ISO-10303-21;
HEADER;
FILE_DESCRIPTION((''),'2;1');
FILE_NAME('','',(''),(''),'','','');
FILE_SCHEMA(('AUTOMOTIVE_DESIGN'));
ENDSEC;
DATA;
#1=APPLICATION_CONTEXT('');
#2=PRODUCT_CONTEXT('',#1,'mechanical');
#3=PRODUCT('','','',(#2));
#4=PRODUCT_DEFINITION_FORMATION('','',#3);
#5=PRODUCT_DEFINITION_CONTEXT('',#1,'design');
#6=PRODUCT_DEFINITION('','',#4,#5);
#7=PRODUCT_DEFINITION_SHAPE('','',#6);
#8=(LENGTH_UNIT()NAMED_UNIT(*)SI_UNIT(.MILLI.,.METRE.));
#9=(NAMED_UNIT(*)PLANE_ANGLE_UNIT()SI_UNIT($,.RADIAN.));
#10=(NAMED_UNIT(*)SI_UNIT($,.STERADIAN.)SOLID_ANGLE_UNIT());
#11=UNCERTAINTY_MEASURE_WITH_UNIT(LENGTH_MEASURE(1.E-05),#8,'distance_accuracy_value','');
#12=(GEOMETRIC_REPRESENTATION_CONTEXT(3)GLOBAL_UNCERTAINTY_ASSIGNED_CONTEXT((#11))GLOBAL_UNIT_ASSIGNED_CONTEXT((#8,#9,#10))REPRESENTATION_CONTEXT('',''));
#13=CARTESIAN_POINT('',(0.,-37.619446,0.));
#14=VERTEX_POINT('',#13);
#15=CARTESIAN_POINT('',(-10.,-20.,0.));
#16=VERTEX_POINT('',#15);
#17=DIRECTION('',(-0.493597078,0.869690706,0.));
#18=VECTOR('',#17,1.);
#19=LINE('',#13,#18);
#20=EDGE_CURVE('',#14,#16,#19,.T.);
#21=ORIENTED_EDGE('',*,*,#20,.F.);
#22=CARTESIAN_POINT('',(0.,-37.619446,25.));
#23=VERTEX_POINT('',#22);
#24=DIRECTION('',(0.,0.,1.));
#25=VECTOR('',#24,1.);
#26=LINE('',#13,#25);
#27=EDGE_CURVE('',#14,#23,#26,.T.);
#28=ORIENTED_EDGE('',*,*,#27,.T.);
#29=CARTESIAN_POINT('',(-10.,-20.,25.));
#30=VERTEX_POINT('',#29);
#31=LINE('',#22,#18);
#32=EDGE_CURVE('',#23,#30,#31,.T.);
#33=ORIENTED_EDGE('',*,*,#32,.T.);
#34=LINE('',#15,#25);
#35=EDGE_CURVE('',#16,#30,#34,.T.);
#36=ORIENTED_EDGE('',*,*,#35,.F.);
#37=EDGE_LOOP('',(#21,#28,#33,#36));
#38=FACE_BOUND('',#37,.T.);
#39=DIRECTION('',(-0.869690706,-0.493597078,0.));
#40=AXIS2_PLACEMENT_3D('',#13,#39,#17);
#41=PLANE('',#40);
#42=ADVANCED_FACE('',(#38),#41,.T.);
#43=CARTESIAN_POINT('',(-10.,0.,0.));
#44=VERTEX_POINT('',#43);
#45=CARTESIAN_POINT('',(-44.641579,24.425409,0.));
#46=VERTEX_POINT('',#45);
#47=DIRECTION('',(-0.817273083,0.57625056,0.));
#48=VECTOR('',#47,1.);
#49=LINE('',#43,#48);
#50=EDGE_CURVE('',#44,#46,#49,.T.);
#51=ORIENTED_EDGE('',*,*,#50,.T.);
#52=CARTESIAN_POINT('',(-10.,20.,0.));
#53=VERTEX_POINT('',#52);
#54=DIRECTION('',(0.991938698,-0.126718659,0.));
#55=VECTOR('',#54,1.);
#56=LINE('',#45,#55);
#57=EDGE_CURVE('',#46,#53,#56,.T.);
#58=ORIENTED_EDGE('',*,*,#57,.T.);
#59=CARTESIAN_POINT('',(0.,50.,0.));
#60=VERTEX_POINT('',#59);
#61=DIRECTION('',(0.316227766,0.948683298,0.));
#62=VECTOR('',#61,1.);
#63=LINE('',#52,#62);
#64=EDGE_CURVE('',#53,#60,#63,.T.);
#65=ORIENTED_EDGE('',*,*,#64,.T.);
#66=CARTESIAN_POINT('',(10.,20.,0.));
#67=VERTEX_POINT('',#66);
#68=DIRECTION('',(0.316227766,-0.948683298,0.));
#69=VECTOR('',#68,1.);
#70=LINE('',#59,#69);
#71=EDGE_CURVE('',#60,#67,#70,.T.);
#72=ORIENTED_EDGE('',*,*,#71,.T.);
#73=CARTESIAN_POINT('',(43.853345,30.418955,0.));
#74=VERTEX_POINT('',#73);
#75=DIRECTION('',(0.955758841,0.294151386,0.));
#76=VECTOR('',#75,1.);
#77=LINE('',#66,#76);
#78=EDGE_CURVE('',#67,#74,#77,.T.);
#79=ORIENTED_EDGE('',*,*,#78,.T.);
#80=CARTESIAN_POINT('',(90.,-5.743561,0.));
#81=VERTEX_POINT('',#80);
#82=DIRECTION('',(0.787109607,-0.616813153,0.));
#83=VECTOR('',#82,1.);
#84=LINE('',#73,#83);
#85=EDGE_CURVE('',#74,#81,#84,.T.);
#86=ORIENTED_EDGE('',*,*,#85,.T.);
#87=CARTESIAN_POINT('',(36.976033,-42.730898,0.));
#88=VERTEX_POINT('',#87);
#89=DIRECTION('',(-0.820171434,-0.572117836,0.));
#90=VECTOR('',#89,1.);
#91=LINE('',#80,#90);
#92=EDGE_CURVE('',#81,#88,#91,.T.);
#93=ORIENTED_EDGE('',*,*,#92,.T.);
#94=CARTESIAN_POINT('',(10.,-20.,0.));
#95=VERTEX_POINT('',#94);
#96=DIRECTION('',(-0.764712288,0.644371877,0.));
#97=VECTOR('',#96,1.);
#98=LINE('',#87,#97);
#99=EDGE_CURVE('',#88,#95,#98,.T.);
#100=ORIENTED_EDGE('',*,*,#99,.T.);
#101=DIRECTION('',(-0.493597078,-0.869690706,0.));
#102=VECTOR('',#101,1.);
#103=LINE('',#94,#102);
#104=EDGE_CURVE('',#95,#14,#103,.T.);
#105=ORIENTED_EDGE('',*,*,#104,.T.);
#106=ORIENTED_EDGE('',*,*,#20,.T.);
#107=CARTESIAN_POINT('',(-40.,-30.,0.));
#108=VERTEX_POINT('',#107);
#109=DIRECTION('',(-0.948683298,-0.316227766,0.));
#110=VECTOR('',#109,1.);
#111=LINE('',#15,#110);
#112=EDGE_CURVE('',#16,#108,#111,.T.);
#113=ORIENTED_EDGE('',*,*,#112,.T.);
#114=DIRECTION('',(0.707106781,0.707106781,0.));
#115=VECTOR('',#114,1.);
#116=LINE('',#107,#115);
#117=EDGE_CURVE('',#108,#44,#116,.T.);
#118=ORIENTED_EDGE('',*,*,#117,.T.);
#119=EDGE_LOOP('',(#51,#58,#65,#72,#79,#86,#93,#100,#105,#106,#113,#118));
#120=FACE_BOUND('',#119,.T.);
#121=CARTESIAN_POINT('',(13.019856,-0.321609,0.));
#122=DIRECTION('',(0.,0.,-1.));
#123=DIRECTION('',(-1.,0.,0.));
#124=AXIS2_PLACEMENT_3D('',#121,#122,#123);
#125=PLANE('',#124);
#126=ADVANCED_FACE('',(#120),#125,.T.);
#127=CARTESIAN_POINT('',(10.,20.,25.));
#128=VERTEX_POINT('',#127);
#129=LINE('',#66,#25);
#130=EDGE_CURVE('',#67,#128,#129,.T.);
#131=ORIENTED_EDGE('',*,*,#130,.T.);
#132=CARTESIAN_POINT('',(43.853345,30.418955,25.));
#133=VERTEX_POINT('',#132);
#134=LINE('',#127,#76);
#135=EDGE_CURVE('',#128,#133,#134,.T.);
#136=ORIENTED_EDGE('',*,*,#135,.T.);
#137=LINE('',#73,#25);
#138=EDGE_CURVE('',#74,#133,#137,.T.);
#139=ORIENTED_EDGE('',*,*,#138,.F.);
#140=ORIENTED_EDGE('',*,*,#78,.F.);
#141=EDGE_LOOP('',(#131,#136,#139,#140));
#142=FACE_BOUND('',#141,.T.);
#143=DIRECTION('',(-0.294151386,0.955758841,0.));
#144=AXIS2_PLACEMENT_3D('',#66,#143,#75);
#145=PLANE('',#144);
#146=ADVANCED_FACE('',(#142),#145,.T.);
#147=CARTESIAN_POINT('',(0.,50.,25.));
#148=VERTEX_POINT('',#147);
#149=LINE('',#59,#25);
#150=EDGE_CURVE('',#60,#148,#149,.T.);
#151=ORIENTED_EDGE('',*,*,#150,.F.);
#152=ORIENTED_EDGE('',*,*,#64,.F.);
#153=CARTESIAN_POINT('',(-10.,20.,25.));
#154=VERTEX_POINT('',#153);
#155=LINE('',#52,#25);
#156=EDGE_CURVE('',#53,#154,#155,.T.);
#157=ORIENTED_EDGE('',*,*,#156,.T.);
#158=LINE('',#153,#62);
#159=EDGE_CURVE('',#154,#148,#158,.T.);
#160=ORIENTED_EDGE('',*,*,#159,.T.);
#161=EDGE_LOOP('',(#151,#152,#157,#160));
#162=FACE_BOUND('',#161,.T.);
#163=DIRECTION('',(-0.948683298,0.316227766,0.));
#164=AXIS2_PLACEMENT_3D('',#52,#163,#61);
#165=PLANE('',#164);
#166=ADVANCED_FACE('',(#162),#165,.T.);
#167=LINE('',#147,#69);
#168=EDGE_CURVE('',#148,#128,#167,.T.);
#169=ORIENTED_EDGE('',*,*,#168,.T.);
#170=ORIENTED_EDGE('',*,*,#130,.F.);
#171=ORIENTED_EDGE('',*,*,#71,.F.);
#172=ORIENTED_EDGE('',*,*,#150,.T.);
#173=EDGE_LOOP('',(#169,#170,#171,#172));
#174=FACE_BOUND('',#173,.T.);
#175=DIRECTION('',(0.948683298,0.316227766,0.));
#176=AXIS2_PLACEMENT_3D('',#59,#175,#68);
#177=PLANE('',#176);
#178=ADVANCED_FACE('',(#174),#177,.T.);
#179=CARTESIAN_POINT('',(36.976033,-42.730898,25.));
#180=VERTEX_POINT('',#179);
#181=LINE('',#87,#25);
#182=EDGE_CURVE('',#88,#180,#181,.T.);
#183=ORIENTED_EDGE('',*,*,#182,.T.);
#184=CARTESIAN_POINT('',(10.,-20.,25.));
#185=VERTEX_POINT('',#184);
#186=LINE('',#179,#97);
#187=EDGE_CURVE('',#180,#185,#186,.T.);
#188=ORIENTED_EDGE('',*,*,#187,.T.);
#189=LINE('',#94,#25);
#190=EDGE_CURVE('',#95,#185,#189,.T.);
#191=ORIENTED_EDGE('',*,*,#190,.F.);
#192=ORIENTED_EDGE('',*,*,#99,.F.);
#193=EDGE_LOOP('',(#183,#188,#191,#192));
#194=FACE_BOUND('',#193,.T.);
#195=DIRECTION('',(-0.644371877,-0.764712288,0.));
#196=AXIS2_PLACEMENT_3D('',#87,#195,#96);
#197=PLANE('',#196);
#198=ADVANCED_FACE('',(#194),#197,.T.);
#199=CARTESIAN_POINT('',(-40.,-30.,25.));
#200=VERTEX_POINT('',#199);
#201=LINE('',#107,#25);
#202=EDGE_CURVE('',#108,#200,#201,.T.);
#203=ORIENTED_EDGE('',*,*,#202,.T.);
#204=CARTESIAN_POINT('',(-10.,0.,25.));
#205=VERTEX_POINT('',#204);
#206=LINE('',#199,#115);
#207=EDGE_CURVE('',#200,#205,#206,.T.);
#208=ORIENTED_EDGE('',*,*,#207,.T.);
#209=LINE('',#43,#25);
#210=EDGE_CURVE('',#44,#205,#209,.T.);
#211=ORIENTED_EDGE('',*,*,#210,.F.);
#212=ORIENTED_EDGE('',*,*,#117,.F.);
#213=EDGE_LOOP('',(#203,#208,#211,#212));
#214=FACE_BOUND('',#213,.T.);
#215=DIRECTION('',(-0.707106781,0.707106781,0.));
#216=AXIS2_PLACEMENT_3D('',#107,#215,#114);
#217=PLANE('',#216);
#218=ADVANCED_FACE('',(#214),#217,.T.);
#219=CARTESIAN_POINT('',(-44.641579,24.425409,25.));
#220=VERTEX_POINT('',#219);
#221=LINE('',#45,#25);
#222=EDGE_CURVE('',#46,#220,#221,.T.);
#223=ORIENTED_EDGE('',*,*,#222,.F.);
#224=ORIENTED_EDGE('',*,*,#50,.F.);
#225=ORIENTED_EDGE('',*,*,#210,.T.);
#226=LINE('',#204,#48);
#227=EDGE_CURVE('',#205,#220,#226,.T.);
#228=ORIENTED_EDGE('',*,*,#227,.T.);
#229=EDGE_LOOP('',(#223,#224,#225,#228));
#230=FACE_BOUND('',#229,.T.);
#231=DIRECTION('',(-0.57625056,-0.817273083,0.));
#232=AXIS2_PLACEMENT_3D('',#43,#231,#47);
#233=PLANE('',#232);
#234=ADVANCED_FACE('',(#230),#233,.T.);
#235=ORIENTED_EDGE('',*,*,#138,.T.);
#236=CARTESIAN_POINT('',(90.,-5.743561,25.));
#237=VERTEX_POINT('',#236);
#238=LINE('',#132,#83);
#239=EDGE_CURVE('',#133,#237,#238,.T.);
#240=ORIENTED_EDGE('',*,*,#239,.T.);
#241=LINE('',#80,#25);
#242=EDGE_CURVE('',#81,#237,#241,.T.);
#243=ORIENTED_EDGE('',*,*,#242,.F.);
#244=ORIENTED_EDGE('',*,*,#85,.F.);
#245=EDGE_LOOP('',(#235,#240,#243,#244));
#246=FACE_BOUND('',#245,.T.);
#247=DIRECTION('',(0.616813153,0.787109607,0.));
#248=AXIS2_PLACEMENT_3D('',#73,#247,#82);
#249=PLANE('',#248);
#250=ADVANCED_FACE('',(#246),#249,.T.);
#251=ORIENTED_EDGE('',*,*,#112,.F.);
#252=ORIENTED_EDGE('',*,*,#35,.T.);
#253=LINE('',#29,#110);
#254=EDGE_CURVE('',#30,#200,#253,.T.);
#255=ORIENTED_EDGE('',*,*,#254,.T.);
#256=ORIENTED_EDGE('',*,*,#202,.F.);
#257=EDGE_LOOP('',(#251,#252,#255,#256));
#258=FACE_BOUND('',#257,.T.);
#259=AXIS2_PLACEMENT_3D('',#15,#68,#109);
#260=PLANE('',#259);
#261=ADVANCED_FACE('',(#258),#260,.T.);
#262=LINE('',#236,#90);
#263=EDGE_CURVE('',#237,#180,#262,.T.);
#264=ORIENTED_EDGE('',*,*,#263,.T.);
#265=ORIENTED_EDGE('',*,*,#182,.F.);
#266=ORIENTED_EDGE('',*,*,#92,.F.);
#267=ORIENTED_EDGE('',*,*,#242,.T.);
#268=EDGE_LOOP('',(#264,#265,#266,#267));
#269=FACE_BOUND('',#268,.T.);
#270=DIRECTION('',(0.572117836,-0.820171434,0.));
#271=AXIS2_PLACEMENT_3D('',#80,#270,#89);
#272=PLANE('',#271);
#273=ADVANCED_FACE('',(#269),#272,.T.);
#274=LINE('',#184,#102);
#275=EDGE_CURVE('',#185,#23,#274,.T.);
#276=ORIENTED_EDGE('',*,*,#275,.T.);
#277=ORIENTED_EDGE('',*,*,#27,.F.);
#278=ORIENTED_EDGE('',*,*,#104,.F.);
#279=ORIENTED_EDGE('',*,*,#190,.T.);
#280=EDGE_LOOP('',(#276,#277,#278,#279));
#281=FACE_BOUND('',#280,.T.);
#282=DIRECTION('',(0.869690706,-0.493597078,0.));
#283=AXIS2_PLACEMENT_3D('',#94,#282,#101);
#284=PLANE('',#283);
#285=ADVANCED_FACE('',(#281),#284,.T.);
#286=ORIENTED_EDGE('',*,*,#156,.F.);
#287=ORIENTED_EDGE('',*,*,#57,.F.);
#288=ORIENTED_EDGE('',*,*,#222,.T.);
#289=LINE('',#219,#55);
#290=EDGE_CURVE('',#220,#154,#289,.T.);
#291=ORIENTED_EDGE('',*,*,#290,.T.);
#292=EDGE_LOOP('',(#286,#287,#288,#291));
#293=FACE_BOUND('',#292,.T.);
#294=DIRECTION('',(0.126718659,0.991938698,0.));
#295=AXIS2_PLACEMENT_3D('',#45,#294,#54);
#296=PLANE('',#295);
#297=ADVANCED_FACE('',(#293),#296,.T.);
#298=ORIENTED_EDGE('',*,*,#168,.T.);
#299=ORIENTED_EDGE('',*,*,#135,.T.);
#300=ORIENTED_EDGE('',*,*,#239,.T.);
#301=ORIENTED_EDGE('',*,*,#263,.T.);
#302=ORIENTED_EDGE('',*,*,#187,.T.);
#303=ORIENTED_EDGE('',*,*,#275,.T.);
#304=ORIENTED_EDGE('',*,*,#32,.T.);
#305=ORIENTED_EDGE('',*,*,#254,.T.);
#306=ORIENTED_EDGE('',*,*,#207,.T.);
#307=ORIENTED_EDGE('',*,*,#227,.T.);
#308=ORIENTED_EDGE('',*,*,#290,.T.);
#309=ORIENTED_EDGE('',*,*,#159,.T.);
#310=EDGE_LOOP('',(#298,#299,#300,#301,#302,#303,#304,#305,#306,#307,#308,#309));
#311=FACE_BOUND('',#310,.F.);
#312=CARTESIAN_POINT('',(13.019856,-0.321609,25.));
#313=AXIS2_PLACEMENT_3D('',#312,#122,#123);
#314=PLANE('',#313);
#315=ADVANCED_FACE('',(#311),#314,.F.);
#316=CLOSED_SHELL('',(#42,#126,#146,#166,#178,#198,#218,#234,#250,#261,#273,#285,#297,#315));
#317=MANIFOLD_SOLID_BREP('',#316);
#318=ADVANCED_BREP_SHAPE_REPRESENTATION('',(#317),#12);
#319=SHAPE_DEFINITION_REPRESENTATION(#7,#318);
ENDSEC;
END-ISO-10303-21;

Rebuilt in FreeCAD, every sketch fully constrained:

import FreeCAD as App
import Part
import Sketcher
Q = App.Units.Quantity


def add_polygon(sketch, points):
    """Adds a closed chain of lines whose ends are joined by coincident constraints."""
    first, n = sketch.GeometryCount, len(points)
    for a, b in zip(points, points[1:] + points[:1]):
        sketch.addGeometry(Part.LineSegment(App.Vector(*a, 0), App.Vector(*b, 0)), False)
    for i in range(n):
        sketch.addConstraint(Sketcher.Constraint("Coincident", first + i, 2, first + (i + 1) % n, 1))

doc = App.newDocument("Part")
body = doc.addObject("PartDesign::Body", "Body")

# Sketch on XY plane
sketch1 = body.newObject("Sketcher::SketchObject", "Sketch")
sketch1.AttachmentSupport = (doc.getObject("XY_Plane"), [""])
sketch1.MapMode = "FlatFace"
add_polygon(sketch1, [(10, 20), (0, 50), (-10, 20), (-45, 24), (-10, 0), (-40, -30), (-10, -20), (0, -38), (10, -20), (37, -43), (90, -6), (44, 30)])  # lines 0-11
sketch1.addConstraint(Sketcher.Constraint("Symmetric", 1, 2, 7, 2, -1, 1))
sketch1.addConstraint(Sketcher.Constraint("Symmetric", 5, 2, 11, 2, -1, 1))
sketch1.addConstraint(Sketcher.Constraint("Symmetric", 5, 2, 7, 2, -2))
sketch1.addConstraint(Sketcher.Constraint("PointOnObject", 0, 2, -2))
sketch1.addConstraint(Sketcher.Constraint("PointOnObject", 3, 2, -1))
sketch1.addConstraint(Sketcher.Constraint("PointOnObject", 6, 2, -2))
sketch1.addConstraint(Sketcher.Constraint("Perpendicular", 0, 5))
sketch1.addConstraint(Sketcher.Constraint("Vertical", 1, 2, 3, 2))
sketch1.addConstraint(Sketcher.Constraint("Equal", 1, 5))
sketch1.addConstraint(Sketcher.Constraint("Angle", 4, Q("-135 deg")))
sketch1.addConstraint(Sketcher.Constraint("DistanceY", -1, 1, 0, 2, 50.0))
sketch1.addConstraint(Sketcher.Constraint("DistanceX", 1, 2, -1, 1, 10.0))
sketch1.addConstraint(Sketcher.Constraint("DistanceX", -1, 1, 9, 2, 90.0))
sketch1.addConstraint(Sketcher.Constraint("Angle", 2, Q("172.719983 deg")))
sketch1.addConstraint(Sketcher.Constraint("DistanceY", 8, 2, -1, 1, 42.730898))
sketch1.addConstraint(Sketcher.Constraint("Distance", 6, 20.259439))
sketch1.addConstraint(Sketcher.Constraint("Distance", 9, 64.649858))
sketch1.addConstraint(Sketcher.Constraint("Distance", 10, 58.627991))
sketch1.addConstraint(Sketcher.Constraint("DistanceX", 2, 2, -1, 1, 44.641579))
sketch1.addConstraint(Sketcher.Constraint("DistanceY", 9, 2, -1, 1, 5.743561))
sketch1.addConstraint(Sketcher.Constraint("Distance", 11, 35.420384))
pad1 = body.newObject("PartDesign::Pad", "Pad")
pad1.Profile = sketch1
pad1.Length = 25

doc.recompute()
